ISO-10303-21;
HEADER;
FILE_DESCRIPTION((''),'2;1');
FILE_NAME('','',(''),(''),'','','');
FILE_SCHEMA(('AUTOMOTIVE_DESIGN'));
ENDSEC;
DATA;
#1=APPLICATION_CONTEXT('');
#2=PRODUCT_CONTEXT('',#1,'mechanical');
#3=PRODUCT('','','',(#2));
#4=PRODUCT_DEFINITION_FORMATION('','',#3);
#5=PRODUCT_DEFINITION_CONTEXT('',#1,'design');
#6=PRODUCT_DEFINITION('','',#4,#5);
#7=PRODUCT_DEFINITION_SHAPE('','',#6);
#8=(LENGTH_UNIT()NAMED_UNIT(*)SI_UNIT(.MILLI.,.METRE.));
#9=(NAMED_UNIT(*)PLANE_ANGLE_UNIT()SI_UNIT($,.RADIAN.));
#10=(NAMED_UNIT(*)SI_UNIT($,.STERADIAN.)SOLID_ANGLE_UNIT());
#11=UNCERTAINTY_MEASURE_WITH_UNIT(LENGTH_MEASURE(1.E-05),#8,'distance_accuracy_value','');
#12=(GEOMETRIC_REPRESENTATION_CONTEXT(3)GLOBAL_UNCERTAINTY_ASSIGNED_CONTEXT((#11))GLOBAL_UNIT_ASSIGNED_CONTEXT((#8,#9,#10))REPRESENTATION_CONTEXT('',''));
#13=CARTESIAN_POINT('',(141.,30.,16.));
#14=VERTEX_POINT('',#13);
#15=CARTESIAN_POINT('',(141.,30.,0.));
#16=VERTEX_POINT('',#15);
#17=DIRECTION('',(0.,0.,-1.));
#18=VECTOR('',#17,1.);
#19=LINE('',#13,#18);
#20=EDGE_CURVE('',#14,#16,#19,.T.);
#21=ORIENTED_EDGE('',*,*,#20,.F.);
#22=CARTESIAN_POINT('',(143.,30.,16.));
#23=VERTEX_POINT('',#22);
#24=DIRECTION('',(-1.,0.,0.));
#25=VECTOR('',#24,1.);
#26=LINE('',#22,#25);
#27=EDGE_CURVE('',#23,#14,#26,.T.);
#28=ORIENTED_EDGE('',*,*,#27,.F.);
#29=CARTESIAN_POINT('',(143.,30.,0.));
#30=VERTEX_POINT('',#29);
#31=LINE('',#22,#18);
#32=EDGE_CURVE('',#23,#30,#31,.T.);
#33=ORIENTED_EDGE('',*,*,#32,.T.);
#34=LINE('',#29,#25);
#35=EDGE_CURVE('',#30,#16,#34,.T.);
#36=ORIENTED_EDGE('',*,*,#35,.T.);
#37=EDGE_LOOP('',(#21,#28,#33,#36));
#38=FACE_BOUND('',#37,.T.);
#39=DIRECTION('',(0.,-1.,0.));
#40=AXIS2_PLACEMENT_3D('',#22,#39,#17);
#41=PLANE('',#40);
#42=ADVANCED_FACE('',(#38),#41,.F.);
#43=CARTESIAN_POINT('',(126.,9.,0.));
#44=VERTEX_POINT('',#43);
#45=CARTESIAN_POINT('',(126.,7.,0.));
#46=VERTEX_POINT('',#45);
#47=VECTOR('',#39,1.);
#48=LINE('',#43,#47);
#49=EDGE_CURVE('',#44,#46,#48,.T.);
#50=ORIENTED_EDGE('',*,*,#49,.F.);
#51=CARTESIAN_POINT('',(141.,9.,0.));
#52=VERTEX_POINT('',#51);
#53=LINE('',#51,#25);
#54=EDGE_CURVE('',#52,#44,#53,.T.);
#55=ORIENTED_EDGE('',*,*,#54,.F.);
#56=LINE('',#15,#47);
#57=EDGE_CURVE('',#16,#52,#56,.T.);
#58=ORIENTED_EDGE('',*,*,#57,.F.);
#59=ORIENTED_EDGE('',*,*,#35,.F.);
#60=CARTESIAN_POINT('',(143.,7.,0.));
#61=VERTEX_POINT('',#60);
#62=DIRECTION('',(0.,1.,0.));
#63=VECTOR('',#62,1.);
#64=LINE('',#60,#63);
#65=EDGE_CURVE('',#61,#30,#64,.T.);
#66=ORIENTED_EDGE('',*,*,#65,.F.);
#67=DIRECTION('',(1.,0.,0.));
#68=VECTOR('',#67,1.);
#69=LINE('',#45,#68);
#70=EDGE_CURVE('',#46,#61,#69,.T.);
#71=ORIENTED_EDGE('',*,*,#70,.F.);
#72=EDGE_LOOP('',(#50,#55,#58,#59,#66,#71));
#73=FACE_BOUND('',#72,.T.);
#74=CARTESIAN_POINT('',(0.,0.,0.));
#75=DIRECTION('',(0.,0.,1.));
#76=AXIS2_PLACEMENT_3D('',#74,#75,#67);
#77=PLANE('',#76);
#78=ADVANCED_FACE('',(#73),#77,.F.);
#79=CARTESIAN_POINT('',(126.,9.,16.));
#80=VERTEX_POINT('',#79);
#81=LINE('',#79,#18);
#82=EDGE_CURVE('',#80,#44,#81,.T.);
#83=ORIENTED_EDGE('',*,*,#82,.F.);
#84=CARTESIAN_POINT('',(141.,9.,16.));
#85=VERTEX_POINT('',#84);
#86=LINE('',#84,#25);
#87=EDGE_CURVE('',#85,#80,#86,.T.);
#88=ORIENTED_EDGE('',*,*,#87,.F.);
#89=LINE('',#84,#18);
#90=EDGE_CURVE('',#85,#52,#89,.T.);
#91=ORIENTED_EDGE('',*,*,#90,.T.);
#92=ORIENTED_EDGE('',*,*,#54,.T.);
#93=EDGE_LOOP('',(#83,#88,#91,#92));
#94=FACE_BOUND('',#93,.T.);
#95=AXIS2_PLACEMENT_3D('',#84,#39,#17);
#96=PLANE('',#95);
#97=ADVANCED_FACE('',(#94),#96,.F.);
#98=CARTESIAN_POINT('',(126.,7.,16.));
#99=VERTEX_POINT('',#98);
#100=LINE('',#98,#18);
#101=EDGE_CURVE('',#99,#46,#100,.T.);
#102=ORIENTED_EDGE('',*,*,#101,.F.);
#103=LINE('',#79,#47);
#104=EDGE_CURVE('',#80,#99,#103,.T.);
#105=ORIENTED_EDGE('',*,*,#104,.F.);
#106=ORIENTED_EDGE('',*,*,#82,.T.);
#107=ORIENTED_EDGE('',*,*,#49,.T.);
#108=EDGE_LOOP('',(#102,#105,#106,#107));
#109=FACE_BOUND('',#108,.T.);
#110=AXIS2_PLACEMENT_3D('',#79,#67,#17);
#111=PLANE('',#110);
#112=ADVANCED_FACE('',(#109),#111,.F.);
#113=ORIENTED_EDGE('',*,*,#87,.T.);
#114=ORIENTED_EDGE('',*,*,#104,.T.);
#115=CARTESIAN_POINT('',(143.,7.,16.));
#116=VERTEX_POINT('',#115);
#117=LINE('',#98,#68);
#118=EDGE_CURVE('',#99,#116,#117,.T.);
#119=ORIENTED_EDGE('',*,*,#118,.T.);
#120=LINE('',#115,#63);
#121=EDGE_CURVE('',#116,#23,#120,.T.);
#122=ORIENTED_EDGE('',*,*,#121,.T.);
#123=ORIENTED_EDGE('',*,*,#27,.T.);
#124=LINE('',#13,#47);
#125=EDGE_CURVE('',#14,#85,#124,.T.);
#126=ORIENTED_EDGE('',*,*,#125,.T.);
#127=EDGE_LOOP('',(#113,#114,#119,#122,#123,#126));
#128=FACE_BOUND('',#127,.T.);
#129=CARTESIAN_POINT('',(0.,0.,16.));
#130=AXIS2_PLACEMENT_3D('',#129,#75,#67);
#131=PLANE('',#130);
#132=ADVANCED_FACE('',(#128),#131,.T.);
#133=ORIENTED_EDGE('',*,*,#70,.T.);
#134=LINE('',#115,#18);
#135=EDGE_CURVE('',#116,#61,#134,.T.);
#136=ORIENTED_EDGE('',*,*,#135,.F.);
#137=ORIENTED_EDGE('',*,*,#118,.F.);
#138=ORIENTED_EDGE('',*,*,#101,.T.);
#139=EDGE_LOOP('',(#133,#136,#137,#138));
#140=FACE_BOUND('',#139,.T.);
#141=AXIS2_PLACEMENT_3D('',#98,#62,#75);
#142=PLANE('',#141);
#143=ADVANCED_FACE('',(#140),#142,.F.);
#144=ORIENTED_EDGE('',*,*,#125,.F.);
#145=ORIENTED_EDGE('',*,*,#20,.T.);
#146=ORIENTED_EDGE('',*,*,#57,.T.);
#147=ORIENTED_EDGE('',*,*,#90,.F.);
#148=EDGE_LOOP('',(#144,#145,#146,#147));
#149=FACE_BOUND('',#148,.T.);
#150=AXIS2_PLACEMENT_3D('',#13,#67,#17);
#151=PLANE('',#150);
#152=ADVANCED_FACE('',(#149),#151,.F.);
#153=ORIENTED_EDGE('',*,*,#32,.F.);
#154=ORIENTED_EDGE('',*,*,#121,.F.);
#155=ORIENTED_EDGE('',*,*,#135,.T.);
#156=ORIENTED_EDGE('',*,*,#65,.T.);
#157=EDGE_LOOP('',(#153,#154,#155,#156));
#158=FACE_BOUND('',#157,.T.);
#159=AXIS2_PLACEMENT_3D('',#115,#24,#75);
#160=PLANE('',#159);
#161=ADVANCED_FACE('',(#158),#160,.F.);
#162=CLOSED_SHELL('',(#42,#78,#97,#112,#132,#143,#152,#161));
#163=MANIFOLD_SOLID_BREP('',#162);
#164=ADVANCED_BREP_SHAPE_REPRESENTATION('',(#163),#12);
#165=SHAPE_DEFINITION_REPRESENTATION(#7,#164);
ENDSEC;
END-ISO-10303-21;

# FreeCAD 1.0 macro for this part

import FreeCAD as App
import Part
import Sketcher

V = App.Vector
Q = App.Units.Quantity


def add_polygon(sketch, points):
    """Adds a closed chain of lines whose ends are joined by coincident constraints."""
    first, n = sketch.GeometryCount, len(points)
    for a, b in zip(points, points[1:] + points[:1]):
        sketch.addGeometry(Part.LineSegment(App.Vector(*a, 0), App.Vector(*b, 0)), False)
    for i in range(n):
        sketch.addConstraint(Sketcher.Constraint("Coincident", first + i, 2, first + (i + 1) % n, 1))

doc = App.newDocument("Part")
params = doc.addObject("Spreadsheet::Sheet", "Params")
for row, (alias, value) in enumerate([
    ("sketch1_width", "17 mm"),
    ("sketch1_width2", "2 mm"),
    ("sketch1_height", "23 mm"),
    ("pad1_length", "16 mm"),
], start=1):
    params.set(f"A{row}", alias)
    params.set(f"B{row}", "=" + value)
    params.setAlias(f"B{row}", alias)

body = doc.addObject("PartDesign::Body", "Body")

# Sketch on XY plane
sketch1 = doc.addObject("Sketcher::SketchObject", "Sketch")
body.addObject(sketch1)
sketch1.AttachmentSupport = (doc.XY_Plane, [""])
sketch1.MapMode = "FlatFace"
add_polygon(sketch1, [(126, 7), (143, 7), (143, 30), (141, 30), (141, 9), (126, 9)])  # lines 0-5
sketch1.addConstraint([
    Sketcher.Constraint("Horizontal", 0),
    Sketcher.Constraint("Vertical", 1),
    Sketcher.Constraint("Horizontal", 2),
    Sketcher.Constraint("Vertical", 3),
    Sketcher.Constraint("Horizontal", 4),
    Sketcher.Constraint("Vertical", 5),
    Sketcher.Constraint("Equal", 2, 5),
    Sketcher.Constraint("DistanceX", 0, 1, 0, 2, Q("17 mm")),
    Sketcher.Constraint("DistanceX", 2, 2, 2, 1, Q("2 mm")),
    Sketcher.Constraint("DistanceY", 1, 1, 1, 2, Q("23 mm")),
    Sketcher.Constraint("DistanceX", -1, 1, 0, 2, Q("143 mm")),
    Sketcher.Constraint("DistanceY", -1, 1, 0, 2, Q("7 mm")),
])
sketch1.setExpression("Constraints[13]", "Params.sketch1_width")
sketch1.setExpression("Constraints[14]", "Params.sketch1_width2")
sketch1.setExpression("Constraints[15]", "Params.sketch1_height")
pad1 = doc.addObject("PartDesign::Pad", "Pad")
body.addObject(pad1)
pad1.Profile = sketch1
pad1.setExpression("Length", "Params.pad1_length")

doc.recompute()
